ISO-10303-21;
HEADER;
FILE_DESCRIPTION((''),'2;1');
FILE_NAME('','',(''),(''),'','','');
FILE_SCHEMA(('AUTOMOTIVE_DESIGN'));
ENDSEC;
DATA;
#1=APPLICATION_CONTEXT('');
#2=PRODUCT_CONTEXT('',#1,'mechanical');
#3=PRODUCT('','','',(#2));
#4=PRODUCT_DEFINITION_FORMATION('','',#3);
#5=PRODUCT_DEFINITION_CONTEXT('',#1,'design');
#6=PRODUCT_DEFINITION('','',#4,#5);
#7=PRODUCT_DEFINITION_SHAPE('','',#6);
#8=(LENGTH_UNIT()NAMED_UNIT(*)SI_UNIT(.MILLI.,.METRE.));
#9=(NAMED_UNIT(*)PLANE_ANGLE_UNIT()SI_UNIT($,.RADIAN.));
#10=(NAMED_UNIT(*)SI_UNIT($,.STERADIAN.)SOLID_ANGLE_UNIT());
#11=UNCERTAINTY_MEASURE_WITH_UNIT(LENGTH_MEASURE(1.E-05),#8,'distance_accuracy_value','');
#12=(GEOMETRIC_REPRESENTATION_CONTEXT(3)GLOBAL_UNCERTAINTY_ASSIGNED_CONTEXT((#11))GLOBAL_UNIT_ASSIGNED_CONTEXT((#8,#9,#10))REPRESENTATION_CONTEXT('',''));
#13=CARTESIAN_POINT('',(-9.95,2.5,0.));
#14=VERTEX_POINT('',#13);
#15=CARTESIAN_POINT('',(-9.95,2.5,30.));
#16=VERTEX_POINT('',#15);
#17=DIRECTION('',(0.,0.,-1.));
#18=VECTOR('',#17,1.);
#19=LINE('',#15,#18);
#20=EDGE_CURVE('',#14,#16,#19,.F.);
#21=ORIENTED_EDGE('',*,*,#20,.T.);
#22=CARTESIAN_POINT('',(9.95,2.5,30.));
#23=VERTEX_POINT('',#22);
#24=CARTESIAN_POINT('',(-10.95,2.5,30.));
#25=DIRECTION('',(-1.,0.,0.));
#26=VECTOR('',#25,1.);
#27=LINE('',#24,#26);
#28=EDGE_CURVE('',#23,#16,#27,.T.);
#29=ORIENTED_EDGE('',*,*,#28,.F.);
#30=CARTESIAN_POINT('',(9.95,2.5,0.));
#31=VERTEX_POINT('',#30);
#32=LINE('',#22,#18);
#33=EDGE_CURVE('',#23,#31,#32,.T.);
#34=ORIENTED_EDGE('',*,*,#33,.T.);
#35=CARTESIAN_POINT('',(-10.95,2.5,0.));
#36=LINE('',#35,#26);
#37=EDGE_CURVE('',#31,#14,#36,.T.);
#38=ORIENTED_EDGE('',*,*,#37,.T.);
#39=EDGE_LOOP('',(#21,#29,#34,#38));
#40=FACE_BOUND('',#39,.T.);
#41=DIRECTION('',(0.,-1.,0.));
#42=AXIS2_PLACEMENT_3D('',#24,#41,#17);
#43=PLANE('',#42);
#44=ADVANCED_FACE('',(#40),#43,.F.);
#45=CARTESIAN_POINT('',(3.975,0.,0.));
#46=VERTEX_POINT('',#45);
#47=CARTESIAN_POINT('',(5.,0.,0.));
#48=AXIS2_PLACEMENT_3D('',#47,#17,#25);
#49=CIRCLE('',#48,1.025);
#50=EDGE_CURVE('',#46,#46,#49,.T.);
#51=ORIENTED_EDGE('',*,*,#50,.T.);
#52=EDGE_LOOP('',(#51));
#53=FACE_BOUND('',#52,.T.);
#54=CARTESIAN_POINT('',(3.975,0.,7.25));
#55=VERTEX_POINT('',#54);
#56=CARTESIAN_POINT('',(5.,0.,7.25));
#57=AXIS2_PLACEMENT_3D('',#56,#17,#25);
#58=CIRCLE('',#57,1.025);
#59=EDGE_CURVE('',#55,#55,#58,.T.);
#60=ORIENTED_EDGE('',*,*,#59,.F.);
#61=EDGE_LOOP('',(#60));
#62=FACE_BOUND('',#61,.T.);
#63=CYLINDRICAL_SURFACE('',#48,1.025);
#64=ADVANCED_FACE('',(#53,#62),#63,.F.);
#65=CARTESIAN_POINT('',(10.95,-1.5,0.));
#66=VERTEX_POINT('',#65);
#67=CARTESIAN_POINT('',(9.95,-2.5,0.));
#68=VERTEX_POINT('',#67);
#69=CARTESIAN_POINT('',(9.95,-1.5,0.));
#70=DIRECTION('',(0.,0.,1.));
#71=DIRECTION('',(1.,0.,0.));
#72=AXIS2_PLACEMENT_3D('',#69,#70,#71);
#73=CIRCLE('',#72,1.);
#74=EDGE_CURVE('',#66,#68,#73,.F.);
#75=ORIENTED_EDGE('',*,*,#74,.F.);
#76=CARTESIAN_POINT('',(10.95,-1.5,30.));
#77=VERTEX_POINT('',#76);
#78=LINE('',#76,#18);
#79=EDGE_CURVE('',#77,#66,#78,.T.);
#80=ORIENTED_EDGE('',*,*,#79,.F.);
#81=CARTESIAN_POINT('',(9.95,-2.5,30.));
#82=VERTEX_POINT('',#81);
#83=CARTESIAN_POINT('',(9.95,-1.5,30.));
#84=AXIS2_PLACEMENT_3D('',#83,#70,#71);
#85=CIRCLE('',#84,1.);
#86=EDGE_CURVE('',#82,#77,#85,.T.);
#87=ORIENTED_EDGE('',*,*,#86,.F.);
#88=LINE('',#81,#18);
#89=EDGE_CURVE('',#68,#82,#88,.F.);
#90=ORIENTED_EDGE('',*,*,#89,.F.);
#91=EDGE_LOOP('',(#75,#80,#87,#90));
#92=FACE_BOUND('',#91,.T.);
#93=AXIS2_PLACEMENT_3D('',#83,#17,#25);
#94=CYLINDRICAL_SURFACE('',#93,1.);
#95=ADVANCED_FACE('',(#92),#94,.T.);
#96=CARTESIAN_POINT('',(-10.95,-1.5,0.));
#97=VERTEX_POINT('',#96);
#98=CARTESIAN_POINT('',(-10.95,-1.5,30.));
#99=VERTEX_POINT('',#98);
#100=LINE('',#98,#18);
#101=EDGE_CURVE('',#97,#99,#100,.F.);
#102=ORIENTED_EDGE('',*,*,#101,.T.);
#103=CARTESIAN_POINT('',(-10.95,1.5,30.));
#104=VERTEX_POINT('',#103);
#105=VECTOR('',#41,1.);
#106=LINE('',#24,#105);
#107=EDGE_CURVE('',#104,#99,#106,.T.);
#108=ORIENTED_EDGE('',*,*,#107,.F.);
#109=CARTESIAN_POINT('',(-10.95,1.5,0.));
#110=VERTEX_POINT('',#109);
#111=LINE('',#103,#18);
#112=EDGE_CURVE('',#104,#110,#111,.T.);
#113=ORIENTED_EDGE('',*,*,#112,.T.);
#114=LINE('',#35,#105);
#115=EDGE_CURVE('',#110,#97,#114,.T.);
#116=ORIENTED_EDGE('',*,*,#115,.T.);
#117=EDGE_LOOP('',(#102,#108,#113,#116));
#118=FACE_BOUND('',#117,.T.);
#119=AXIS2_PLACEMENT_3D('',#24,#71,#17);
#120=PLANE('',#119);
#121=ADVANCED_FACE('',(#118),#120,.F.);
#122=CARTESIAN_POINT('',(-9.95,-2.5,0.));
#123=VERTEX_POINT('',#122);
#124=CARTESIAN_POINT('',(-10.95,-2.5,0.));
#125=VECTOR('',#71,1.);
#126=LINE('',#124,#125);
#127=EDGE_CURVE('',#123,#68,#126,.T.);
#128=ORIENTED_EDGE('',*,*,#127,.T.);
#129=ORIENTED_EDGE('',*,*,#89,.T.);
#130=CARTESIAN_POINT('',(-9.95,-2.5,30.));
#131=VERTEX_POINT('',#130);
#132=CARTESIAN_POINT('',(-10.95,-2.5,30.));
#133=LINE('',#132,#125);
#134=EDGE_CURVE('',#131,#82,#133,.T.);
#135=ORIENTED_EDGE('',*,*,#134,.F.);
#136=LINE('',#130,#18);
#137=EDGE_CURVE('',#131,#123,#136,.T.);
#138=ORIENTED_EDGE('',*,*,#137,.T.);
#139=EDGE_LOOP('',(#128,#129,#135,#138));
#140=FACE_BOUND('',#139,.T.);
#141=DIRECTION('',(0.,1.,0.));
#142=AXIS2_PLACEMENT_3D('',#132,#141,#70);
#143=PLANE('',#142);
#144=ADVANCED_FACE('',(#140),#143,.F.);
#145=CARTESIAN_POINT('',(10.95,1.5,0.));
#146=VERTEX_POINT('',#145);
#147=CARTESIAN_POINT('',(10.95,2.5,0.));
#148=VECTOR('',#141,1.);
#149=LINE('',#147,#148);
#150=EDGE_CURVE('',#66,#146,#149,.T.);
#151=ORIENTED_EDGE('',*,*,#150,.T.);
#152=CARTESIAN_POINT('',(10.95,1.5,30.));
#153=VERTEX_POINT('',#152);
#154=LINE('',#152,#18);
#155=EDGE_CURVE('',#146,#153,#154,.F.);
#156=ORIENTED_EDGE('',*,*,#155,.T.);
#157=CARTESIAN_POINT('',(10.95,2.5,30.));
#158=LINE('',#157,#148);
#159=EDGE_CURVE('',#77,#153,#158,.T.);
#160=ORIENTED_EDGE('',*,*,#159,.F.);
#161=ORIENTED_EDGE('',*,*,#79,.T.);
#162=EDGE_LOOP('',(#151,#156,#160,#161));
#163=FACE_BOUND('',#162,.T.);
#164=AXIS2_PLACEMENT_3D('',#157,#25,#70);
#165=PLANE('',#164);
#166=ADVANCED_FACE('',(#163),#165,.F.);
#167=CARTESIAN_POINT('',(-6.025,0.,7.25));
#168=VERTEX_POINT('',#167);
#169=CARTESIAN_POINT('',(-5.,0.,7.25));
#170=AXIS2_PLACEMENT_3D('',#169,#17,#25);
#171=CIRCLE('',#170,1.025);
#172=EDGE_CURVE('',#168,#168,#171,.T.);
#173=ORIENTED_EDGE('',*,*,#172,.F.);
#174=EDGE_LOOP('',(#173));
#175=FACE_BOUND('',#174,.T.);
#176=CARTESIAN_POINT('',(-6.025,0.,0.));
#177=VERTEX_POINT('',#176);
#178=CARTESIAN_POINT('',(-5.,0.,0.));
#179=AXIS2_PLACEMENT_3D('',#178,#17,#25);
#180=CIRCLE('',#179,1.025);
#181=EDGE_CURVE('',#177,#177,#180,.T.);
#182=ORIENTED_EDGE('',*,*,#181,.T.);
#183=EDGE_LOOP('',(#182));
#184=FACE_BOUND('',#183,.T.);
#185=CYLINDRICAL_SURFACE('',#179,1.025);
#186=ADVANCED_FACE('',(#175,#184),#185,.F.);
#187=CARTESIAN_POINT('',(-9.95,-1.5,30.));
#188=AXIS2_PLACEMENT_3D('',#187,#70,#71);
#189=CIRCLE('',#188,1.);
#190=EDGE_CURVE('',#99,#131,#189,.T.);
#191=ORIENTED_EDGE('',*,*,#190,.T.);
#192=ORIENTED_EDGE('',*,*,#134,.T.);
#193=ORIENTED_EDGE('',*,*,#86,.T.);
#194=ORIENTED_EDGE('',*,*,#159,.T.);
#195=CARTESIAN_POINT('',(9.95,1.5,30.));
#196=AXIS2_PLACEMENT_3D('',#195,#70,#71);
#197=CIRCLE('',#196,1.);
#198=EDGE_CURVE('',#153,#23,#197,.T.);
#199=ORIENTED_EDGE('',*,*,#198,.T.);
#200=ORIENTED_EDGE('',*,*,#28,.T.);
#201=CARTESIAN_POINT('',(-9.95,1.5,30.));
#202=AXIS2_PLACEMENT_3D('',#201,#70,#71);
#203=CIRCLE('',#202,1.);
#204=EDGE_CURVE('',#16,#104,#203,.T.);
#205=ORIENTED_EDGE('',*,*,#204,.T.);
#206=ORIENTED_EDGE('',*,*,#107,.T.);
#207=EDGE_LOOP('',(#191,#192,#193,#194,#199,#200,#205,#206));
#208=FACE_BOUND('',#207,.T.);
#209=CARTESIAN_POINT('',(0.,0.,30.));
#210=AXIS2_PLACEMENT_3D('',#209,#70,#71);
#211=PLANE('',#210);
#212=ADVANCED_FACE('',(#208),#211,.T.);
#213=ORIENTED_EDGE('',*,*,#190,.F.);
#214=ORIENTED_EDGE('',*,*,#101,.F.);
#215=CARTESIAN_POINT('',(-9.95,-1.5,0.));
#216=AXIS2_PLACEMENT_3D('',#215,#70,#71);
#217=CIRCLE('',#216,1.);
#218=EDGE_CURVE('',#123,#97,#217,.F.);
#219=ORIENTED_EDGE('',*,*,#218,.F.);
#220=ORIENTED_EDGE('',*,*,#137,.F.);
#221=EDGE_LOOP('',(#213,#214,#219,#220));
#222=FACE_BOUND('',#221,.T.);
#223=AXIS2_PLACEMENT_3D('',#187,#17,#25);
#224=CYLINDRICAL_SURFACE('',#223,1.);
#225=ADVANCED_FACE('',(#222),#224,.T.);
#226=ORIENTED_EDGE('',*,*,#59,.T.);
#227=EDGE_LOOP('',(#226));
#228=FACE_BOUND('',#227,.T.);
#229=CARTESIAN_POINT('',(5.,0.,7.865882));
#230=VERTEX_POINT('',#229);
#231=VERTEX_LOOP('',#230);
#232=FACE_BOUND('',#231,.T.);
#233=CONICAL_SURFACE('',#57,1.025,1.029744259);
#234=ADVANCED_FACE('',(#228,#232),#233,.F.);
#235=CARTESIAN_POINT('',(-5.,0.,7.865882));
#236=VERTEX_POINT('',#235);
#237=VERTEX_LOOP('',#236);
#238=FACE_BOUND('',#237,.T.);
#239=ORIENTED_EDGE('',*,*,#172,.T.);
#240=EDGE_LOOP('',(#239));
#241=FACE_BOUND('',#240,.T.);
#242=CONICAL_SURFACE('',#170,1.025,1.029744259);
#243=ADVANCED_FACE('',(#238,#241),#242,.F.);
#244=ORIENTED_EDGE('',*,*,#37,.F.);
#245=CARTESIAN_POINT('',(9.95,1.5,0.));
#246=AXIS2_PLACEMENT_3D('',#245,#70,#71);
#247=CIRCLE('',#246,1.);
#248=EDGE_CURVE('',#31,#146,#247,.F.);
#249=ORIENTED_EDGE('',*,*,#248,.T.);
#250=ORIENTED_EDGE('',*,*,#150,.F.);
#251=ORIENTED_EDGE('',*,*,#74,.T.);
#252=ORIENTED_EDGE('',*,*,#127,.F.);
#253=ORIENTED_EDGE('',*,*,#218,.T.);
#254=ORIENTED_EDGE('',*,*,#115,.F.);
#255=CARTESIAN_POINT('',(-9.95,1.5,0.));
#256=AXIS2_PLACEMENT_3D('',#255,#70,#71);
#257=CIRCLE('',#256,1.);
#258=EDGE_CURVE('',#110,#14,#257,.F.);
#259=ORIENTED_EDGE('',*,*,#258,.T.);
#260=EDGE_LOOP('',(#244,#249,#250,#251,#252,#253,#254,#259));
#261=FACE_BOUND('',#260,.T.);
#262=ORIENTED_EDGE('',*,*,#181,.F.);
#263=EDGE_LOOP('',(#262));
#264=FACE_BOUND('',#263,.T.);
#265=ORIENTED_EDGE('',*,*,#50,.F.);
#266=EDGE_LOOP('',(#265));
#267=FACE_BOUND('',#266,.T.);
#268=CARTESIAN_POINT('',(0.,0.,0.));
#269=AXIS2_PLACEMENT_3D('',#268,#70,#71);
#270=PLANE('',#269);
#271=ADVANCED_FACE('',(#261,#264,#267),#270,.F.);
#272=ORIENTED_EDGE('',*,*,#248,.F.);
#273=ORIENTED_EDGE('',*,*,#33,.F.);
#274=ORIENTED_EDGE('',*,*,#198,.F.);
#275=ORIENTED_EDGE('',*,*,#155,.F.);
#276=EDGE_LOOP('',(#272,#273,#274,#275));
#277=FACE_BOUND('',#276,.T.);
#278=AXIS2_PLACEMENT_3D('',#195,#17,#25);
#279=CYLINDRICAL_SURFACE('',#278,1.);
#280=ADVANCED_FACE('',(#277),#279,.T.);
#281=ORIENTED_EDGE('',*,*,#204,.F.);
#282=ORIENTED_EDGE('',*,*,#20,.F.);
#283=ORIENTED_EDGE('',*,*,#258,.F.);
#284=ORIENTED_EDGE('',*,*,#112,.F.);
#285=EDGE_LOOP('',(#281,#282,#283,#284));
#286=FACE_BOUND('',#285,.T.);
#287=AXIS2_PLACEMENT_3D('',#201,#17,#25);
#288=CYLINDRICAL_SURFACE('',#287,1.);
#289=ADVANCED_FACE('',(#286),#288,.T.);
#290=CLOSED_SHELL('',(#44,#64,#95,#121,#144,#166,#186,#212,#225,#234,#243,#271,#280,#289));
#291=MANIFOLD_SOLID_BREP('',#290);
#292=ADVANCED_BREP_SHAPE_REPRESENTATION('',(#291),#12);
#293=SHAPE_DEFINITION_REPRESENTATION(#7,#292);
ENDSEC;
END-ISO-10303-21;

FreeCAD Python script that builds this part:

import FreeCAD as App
import Part
import Sketcher
from FreeCAD import Vector


def edges_at(feature, points):
    """Names of the edges that pass closest to the given points."""
    edges = feature.Shape.Edges
    near = lambda p: min(range(len(edges)), key=lambda i: edges[i].distToShape(Part.Vertex(*p))[0])
    return sorted({f"Edge{near(p) + 1}" for p in points})

doc = App.newDocument("Part")
body = doc.addObject("PartDesign::Body", "Body")

sketch1 = doc.addObject("Sketcher::SketchObject", "Sketch")
body.addObject(sketch1)
sketch1.AttachmentSupport = (doc.XY_Plane, [""])
sketch1.MapMode = "FlatFace"
sketch1.addGeometry([
    Part.LineSegment(Vector(-10.95, 2.5, 0), Vector(-10.95, -2.5, 0)),
    Part.LineSegment(Vector(-10.95, -2.5, 0), Vector(10.95, -2.5, 0)),
    Part.LineSegment(Vector(10.95, -2.5, 0), Vector(10.95, 2.5, 0)),
    Part.LineSegment(Vector(10.95, 2.5, 0), Vector(-10.95, 2.5, 0)),
], False)
sketch1.addConstraint([
    Sketcher.Constraint("Coincident", 0, 2, 1, 1),
    Sketcher.Constraint("Coincident", 1, 2, 2, 1),
    Sketcher.Constraint("Coincident", 2, 2, 3, 1),
    Sketcher.Constraint("Coincident", 3, 2, 0, 1),
    Sketcher.Constraint("Vertical", 0),
    Sketcher.Constraint("Horizontal", 1),
    Sketcher.Constraint("Vertical", 2),
    Sketcher.Constraint("Horizontal", 3),
    Sketcher.Constraint("Symmetric", 0, 2, 2, 2, -1, 1),
    Sketcher.Constraint("DistanceY", 0, 2, 0, 1, 5.0),
    Sketcher.Constraint("DistanceX", 1, 1, 1, 2, 21.9),
])
pad1 = doc.addObject("PartDesign::Pad", "Pad")
body.addObject(pad1)
pad1.Profile = sketch1
pad1.Length = 30
doc.recompute()

fillet = doc.addObject("PartDesign::Fillet", "Fillet")
body.addObject(fillet)
fillet.Base = (pad1, edges_at(pad1, [
    (10.95, -2.5, 15),
    (-10.95, -2.5, 15),
    (-10.95, 2.5, 15),
    (10.95, 2.5, 15),
]))
fillet.Radius = 1

sketch2 = doc.addObject("Sketcher::SketchObject", "Sketch001")
body.addObject(sketch2)
sketch2.AttachmentSupport = (doc.XY_Plane, [""])
sketch2.MapMode = "FlatFace"
sketch2.addGeometry([
    Part.Circle(Vector(5, 0, 0), Vector(0, 0, 1), 1.025),
    Part.Circle(Vector(-5, 0, 0), Vector(0, 0, 1), 1.025),
], False)
sketch2.addConstraint([
    Sketcher.Constraint("Equal", 0, 1),
    Sketcher.Constraint("Symmetric", 0, 3, 1, 3, -1, 1),
    Sketcher.Constraint("PointOnObject", 0, 3, -1),
    Sketcher.Constraint("Diameter", 0, 2.05),
    Sketcher.Constraint("DistanceX", -1, 1, 0, 3, 5.0),
])
doc.recompute()
hole = doc.addObject("PartDesign::Hole", "Hole")
body.addObject(hole)
hole.Profile = sketch2
hole.ThreadType = "None"
hole.Diameter = 2.05
hole.DepthType = "Dimension"
hole.Depth = 7.25
hole.DrillPoint = "Angled"
hole.DrillPointAngle = 118
hole.Reversed = True

doc.recompute()
